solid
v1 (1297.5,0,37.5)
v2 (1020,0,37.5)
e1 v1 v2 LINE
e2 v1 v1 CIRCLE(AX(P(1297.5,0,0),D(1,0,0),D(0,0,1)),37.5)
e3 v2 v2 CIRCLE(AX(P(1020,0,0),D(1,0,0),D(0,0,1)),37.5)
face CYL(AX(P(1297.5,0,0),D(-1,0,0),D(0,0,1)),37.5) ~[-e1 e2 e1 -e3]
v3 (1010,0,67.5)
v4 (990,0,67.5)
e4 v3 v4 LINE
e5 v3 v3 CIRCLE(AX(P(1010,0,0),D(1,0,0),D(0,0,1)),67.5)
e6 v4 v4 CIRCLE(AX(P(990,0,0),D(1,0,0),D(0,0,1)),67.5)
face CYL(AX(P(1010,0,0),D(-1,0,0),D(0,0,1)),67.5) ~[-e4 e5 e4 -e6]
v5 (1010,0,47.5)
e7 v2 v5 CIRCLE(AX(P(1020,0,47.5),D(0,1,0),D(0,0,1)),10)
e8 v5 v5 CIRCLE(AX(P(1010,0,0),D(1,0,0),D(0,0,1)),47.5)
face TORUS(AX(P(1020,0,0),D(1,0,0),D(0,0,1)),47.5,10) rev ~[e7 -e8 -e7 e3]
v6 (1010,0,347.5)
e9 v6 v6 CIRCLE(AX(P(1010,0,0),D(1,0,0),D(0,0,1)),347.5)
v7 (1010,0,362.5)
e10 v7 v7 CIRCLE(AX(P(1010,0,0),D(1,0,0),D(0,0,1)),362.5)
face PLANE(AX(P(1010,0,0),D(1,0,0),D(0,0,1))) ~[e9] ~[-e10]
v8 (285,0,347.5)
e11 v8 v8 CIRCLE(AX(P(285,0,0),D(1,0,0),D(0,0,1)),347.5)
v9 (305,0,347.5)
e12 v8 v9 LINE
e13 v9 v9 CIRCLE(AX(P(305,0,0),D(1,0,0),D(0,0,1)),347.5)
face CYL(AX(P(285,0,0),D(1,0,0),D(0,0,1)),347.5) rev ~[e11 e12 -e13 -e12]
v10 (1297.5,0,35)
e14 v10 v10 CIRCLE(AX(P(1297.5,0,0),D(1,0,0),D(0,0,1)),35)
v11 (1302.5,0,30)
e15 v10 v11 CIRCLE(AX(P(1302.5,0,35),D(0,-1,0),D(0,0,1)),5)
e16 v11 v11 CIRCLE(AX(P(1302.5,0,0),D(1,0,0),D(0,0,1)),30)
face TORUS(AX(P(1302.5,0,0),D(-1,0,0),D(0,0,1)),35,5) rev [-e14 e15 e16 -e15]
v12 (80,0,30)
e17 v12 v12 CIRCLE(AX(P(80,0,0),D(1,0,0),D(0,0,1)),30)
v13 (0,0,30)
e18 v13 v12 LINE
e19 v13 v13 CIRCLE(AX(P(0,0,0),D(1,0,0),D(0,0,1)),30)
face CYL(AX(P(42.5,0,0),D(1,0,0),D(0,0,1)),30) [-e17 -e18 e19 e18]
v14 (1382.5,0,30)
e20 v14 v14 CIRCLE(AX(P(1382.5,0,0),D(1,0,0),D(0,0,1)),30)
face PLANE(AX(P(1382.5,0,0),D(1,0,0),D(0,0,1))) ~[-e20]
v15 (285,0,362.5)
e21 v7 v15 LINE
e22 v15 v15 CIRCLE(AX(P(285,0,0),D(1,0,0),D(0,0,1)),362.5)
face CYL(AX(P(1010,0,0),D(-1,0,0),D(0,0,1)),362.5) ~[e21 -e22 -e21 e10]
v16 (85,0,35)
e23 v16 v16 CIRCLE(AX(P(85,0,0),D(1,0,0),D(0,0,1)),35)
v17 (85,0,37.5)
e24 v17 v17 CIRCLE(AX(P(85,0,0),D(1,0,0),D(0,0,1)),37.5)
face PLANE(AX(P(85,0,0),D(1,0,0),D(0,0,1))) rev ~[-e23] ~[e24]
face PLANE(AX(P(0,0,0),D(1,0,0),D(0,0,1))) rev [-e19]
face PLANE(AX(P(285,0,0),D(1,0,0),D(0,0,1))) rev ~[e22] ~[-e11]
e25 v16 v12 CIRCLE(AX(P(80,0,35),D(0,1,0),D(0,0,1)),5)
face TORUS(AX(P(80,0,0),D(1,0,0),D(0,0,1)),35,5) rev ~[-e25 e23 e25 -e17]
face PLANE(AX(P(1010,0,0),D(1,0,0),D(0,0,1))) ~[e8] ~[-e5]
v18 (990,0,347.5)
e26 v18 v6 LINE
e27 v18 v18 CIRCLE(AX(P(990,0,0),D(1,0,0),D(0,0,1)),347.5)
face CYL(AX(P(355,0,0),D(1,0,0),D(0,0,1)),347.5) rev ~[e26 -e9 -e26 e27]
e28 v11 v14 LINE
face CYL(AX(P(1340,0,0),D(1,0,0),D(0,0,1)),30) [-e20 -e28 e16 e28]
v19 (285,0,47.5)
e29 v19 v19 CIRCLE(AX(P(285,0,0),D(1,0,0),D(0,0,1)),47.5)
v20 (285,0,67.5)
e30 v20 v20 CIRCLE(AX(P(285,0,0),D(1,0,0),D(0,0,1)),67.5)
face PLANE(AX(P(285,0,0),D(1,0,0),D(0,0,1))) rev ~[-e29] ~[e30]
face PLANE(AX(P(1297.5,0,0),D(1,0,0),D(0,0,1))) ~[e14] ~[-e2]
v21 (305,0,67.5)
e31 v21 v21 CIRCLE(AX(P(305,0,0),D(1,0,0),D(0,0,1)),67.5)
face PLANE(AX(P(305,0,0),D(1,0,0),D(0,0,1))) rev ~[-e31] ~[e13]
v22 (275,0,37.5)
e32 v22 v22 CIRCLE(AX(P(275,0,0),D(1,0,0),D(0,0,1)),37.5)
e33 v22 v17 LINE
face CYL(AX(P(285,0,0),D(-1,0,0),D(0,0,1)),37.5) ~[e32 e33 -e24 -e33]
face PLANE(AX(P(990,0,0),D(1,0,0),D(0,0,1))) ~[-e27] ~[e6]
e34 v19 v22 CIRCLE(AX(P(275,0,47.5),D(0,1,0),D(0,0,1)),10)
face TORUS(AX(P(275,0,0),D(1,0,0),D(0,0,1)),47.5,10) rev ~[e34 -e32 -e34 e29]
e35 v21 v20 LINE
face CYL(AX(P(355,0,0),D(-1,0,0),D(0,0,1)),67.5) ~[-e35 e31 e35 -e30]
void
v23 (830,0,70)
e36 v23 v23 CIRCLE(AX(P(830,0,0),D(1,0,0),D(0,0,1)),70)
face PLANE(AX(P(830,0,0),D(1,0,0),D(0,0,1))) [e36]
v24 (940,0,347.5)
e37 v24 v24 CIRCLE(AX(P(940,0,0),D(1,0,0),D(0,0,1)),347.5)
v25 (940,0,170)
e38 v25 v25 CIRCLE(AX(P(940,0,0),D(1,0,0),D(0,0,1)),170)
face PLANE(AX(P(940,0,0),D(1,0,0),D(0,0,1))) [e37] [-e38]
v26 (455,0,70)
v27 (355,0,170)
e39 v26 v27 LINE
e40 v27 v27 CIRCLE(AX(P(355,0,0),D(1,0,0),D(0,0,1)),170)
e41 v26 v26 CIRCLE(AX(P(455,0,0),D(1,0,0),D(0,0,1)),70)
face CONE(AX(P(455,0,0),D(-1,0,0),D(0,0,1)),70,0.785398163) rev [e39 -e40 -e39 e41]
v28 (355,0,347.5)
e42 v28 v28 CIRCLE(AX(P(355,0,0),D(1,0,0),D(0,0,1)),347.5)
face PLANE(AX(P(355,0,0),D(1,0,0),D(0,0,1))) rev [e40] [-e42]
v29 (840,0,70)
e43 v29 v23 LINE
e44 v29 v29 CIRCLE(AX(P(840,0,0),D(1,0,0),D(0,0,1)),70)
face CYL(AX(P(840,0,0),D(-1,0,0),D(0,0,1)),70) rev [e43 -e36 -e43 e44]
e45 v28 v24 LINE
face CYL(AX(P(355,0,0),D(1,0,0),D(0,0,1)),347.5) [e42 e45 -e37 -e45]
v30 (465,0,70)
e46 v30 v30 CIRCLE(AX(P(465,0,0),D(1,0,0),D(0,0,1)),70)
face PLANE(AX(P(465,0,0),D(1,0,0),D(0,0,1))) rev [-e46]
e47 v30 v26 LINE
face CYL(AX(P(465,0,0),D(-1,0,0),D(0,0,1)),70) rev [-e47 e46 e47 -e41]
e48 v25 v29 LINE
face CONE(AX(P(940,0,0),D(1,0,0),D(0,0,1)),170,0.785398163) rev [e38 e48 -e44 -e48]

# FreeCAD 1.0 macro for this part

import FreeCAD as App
import Part
import Sketcher
Q = App.Units.Quantity


def edges_at(feature, points):
    """Names of the edges that pass closest to the given points."""
    edges = feature.Shape.Edges
    near = lambda p: min(range(len(edges)), key=lambda i: edges[i].distToShape(Part.Vertex(*p))[0])
    return sorted({f"Edge{near(p) + 1}" for p in points})

doc = App.newDocument("Part")
body = doc.addObject("PartDesign::Body", "Body")

sketch1 = body.newObject("Sketcher::SketchObject", "Sketch")
sketch1.AttachmentSupport = (doc.getObject("XZ_Plane"), [""])
sketch1.MapMode = "FlatFace"
sketch1.addGeometry(Part.LineSegment(App.Vector(0, 30, 0), App.Vector(0, 0, 0)), False)
sketch1.addGeometry(Part.LineSegment(App.Vector(0, 0, 0), App.Vector(465, 0, 0)), False)
sketch1.addGeometry(Part.LineSegment(App.Vector(465, 0, 0), App.Vector(465, 70, 0)), False)
sketch1.addGeometry(Part.LineSegment(App.Vector(465, 70, 0), App.Vector(455, 70, 0)), False)
sketch1.addGeometry(Part.LineSegment(App.Vector(455, 70, 0), App.Vector(355, 170, 0)), False)
sketch1.addGeometry(Part.LineSegment(App.Vector(355, 170, 0), App.Vector(355, 348, 0)), False)
sketch1.addGeometry(Part.LineSegment(App.Vector(355, 348, 0), App.Vector(940, 348, 0)), False)
sketch1.addGeometry(Part.LineSegment(App.Vector(940, 348, 0), App.Vector(940, 170, 0)), False)
sketch1.addGeometry(Part.LineSegment(App.Vector(940, 170, 0), App.Vector(840, 70, 0)), False)
sketch1.addGeometry(Part.LineSegment(App.Vector(840, 70, 0), App.Vector(830, 70, 0)), False)
sketch1.addGeometry(Part.LineSegment(App.Vector(830, 70, 0), App.Vector(830, 0, 0)), False)
sketch1.addGeometry(Part.LineSegment(App.Vector(830, 0, 0), App.Vector(1382, 0, 0)), False)
sketch1.addGeometry(Part.LineSegment(App.Vector(1382, 0, 0), App.Vector(1382, 30, 0)), False)
sketch1.addGeometry(Part.LineSegment(App.Vector(1382, 30, 0), App.Vector(1298, 30, 0)), False)
sketch1.addGeometry(Part.LineSegment(App.Vector(1298, 30, 0), App.Vector(1298, 38, 0)), False)
sketch1.addGeometry(Part.LineSegment(App.Vector(1298, 38, 0), App.Vector(1010, 38, 0)), False)
sketch1.addGeometry(Part.LineSegment(App.Vector(1010, 38, 0), App.Vector(1010, 68, 0)), False)
sketch1.addGeometry(Part.LineSegment(App.Vector(1010, 68, 0), App.Vector(990, 68, 0)), False)
sketch1.addGeometry(Part.LineSegment(App.Vector(990, 68, 0), App.Vector(990, 348, 0)), False)
sketch1.addGeometry(Part.LineSegment(App.Vector(990, 348, 0), App.Vector(1010, 348, 0)), False)
sketch1.addGeometry(Part.LineSegment(App.Vector(1010, 348, 0), App.Vector(1010, 362, 0)), False)
sketch1.addGeometry(Part.LineSegment(App.Vector(1010, 362, 0), App.Vector(285, 362, 0)), False)
sketch1.addGeometry(Part.LineSegment(App.Vector(285, 362, 0), App.Vector(285, 348, 0)), False)
sketch1.addGeometry(Part.LineSegment(App.Vector(285, 348, 0), App.Vector(305, 348, 0)), False)
sketch1.addGeometry(Part.LineSegment(App.Vector(305, 348, 0), App.Vector(305, 68, 0)), False)
sketch1.addGeometry(Part.LineSegment(App.Vector(305, 68, 0), App.Vector(285, 68, 0)), False)
sketch1.addGeometry(Part.LineSegment(App.Vector(285, 68, 0), App.Vector(285, 38, 0)), False)
sketch1.addGeometry(Part.LineSegment(App.Vector(285, 38, 0), App.Vector(85, 38, 0)), False)
sketch1.addGeometry(Part.LineSegment(App.Vector(85, 38, 0), App.Vector(85, 30, 0)), False)
sketch1.addGeometry(Part.LineSegment(App.Vector(85, 30, 0), App.Vector(0, 30, 0)), False)
sketch1.addConstraint(Sketcher.Constraint("Coincident", 0, 2, 1, 1))
sketch1.addConstraint(Sketcher.Constraint("Coincident", 1, 2, 2, 1))
sketch1.addConstraint(Sketcher.Constraint("Coincident", 2, 2, 3, 1))
sketch1.addConstraint(Sketcher.Constraint("Coincident", 3, 2, 4, 1))
sketch1.addConstraint(Sketcher.Constraint("Coincident", 4, 2, 5, 1))
sketch1.addConstraint(Sketcher.Constraint("Coincident", 5, 2, 6, 1))
sketch1.addConstraint(Sketcher.Constraint("Coincident", 6, 2, 7, 1))
sketch1.addConstraint(Sketcher.Constraint("Coincident", 7, 2, 8, 1))
sketch1.addConstraint(Sketcher.Constraint("Coincident", 8, 2, 9, 1))
sketch1.addConstraint(Sketcher.Constraint("Coincident", 9, 2, 10, 1))
sketch1.addConstraint(Sketcher.Constraint("Coincident", 10, 2, 11, 1))
sketch1.addConstraint(Sketcher.Constraint("Coincident", 11, 2, 12, 1))
sketch1.addConstraint(Sketcher.Constraint("Coincident", 12, 2, 13, 1))
sketch1.addConstraint(Sketcher.Constraint("Coincident", 13, 2, 14, 1))
sketch1.addConstraint(Sketcher.Constraint("Coincident", 14, 2, 15, 1))
sketch1.addConstraint(Sketcher.Constraint("Coincident", 15, 2, 16, 1))
sketch1.addConstraint(Sketcher.Constraint("Coincident", 16, 2, 17, 1))
sketch1.addConstraint(Sketcher.Constraint("Coincident", 17, 2, 18, 1))
sketch1.addConstraint(Sketcher.Constraint("Coincident", 18, 2, 19, 1))
sketch1.addConstraint(Sketcher.Constraint("Coincident", 19, 2, 20, 1))
sketch1.addConstraint(Sketcher.Constraint("Coincident", 20, 2, 21, 1))
sketch1.addConstraint(Sketcher.Constraint("Coincident", 21, 2, 22, 1))
sketch1.addConstraint(Sketcher.Constraint("Coincident", 22, 2, 23, 1))
sketch1.addConstraint(Sketcher.Constraint("Coincident", 23, 2, 24, 1))
sketch1.addConstraint(Sketcher.Constraint("Coincident", 24, 2, 25, 1))
sketch1.addConstraint(Sketcher.Constraint("Coincident", 25, 2, 26, 1))
sketch1.addConstraint(Sketcher.Constraint("Coincident", 26, 2, 27, 1))
sketch1.addConstraint(Sketcher.Constraint("Coincident", 27, 2, 28, 1))
sketch1.addConstraint(Sketcher.Constraint("Coincident", 28, 2, 29, 1))
sketch1.addConstraint(Sketcher.Constraint("Coincident", 29, 2, 0, 1))
sketch1.addConstraint(Sketcher.Constraint("Vertical", 0))
sketch1.addConstraint(Sketcher.Constraint("Horizontal", 1))
sketch1.addConstraint(Sketcher.Constraint("Vertical", 2))
sketch1.addConstraint(Sketcher.Constraint("Horizontal", 3))
sketch1.addConstraint(Sketcher.Constraint("Vertical", 5))
sketch1.addConstraint(Sketcher.Constraint("Horizontal", 6))
sketch1.addConstraint(Sketcher.Constraint("Vertical", 7))
sketch1.addConstraint(Sketcher.Constraint("Horizontal", 9))
sketch1.addConstraint(Sketcher.Constraint("Vertical", 10))
sketch1.addConstraint(Sketcher.Constraint("Horizontal", 11))
sketch1.addConstraint(Sketcher.Constraint("Vertical", 12))
sketch1.addConstraint(Sketcher.Constraint("Horizontal", 13))
sketch1.addConstraint(Sketcher.Constraint("Vertical", 14))
sketch1.addConstraint(Sketcher.Constraint("Horizontal", 15))
sketch1.addConstraint(Sketcher.Constraint("Vertical", 16))
sketch1.addConstraint(Sketcher.Constraint("Horizontal", 17))
sketch1.addConstraint(Sketcher.Constraint("Vertical", 18))
sketch1.addConstraint(Sketcher.Constraint("Horizontal", 19))
sketch1.addConstraint(Sketcher.Constraint("Vertical", 20))
sketch1.addConstraint(Sketcher.Constraint("Horizontal", 21))
sketch1.addConstraint(Sketcher.Constraint("Vertical", 22))
sketch1.addConstraint(Sketcher.Constraint("Horizontal", 23))
sketch1.addConstraint(Sketcher.Constraint("Vertical", 24))
sketch1.addConstraint(Sketcher.Constraint("Horizontal", 25))
sketch1.addConstraint(Sketcher.Constraint("Vertical", 26))
sketch1.addConstraint(Sketcher.Constraint("Horizontal", 27))
sketch1.addConstraint(Sketcher.Constraint("Vertical", 28))
sketch1.addConstraint(Sketcher.Constraint("Horizontal", 29))
sketch1.addConstraint(Sketcher.Constraint("Coincident", 0, 2, -1, 1))
sketch1.addConstraint(Sketcher.Constraint("PointOnObject", 10, 2, -1))
sketch1.addConstraint(Sketcher.Constraint("Perpendicular", 4, 8))
sketch1.addConstraint(Sketcher.Constraint("Horizontal", 4, 2, 7, 2))
sketch1.addConstraint(Sketcher.Constraint("Horizontal", 3, 2, 8, 2))
sketch1.addConstraint(Sketcher.Constraint("Horizontal", 6, 2, 18, 2))
sketch1.addConstraint(Sketcher.Constraint("Horizontal", 19, 2, 22, 2))
sketch1.addConstraint(Sketcher.Constraint("Horizontal", 17, 2, 24, 2))
sketch1.addConstraint(Sketcher.Constraint("Horizontal", 15, 2, 26, 2))
sketch1.addConstraint(Sketcher.Constraint("Horizontal", 13, 2, 28, 2))
sketch1.addConstraint(Sketcher.Constraint("Vertical", 16, 2, 19, 2))
sketch1.addConstraint(Sketcher.Constraint("Vertical", 22, 2, 25, 2))
sketch1.addConstraint(Sketcher.Constraint("Equal", 3, 9))
sketch1.addConstraint(Sketcher.Constraint("Equal", 19, 23))
sketch1.addConstraint(Sketcher.Constraint("Equal", 13, 29))
sketch1.addConstraint(Sketcher.Constraint("Equal", 12, 16))
sketch1.addConstraint(Sketcher.Constraint("Equal", 4, 8))
sketch1.addConstraint(Sketcher.Constraint("DistanceX", 1, 1, 1, 2, Q("465 mm")))
sketch1.addConstraint(Sketcher.Constraint("DistanceX", 3, 2, 3, 1, Q("10 mm")))
sketch1.addConstraint(Sketcher.Constraint("DistanceX", 6, 1, 6, 2, Q("585 mm")))
sketch1.addConstraint(Sketcher.Constraint("DistanceX", 13, 2, 13, 1, Q("85 mm")))
sketch1.addConstraint(Sketcher.Constraint("DistanceX", 17, 2, 17, 1, Q("20 mm")))
sketch1.addConstraint(Sketcher.Constraint("DistanceX", 21, 2, 21, 1, Q("725 mm")))
sketch1.addConstraint(Sketcher.Constraint("DistanceX", 27, 2, 27, 1, Q("200 mm")))
sketch1.addConstraint(Sketcher.Constraint("DistanceY", 0, 2, 0, 1, Q("30 mm")))
sketch1.addConstraint(Sketcher.Constraint("DistanceY", 2, 1, 2, 2, Q("70 mm")))
sketch1.addConstraint(Sketcher.Constraint("DistanceY", 18, 1, 18, 2, Q("280 mm")))
sketch1.addConstraint(Sketcher.Constraint("DistanceY", 20, 1, 20, 2, Q("15 mm")))
sketch1.addConstraint(Sketcher.Constraint("DistanceX", 11, 1, 11, 2, Q("552.5 mm")))
sketch1.addConstraint(Sketcher.Constraint("DistanceX", 15, 2, 15, 1, Q("287.5 mm")))
sketch1.addConstraint(Sketcher.Constraint("DistanceY", 5, 1, 5, 2, Q("177.5 mm")))
revolution = body.newObject("PartDesign::Revolution", "Revolution")
revolution.Profile = sketch1
revolution.ReferenceAxis = (sketch1, ["H_Axis"])
revolution.Angle = 360
doc.recompute()

fillet = body.newObject("PartDesign::Fillet", "Fillet")
fillet.Base = (revolution, edges_at(revolution, [(1010, 0, -37.5), (285, 0, -37.5)]))
fillet.Radius = 10
doc.recompute()

fillet2 = body.newObject("PartDesign::Fillet", "Fillet001")
fillet2.Base = (fillet, edges_at(fillet, [(85, 0, -30), (1297.5, 0, -30)]))
fillet2.Radius = 5

doc.recompute()
